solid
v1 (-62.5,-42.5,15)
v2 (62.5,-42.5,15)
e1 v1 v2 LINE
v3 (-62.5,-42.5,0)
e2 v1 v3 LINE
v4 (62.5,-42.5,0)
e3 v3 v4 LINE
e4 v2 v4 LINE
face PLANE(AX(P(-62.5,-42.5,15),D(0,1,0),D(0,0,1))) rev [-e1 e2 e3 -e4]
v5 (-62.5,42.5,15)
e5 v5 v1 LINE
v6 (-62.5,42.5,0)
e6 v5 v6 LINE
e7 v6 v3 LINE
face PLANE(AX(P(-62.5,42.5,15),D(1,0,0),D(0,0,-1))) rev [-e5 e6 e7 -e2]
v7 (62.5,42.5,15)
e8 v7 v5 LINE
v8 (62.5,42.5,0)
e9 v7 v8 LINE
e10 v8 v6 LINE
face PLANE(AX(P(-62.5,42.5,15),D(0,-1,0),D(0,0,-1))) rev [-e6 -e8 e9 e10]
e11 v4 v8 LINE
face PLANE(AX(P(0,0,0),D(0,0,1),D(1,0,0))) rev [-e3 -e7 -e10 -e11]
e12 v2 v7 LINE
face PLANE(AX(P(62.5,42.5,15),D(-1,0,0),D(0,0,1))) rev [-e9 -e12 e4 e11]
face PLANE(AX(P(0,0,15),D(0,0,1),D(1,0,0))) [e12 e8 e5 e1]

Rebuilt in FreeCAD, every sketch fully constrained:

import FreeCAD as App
import Part
import Sketcher
from FreeCAD import Vector

doc = App.newDocument("Part")
body = doc.addObject("PartDesign::Body", "Body")

sketch1 = body.newObject("Sketcher::SketchObject", "Sketch")
sketch1.AttachmentSupport = (doc.getObject("XY_Plane"), [""])
sketch1.MapMode = "FlatFace"
sketch1.addGeometry([
    Part.LineSegment(Vector(-62, 42, 0), Vector(-62, -42, 0)),
    Part.LineSegment(Vector(-62, -42, 0), Vector(62, -42, 0)),
    Part.LineSegment(Vector(62, -42, 0), Vector(62, 42, 0)),
    Part.LineSegment(Vector(62, 42, 0), Vector(-62, 42, 0)),
], False)
sketch1.addConstraint([
    Sketcher.Constraint("Coincident", 0, 2, 1, 1),
    Sketcher.Constraint("Coincident", 1, 2, 2, 1),
    Sketcher.Constraint("Coincident", 2, 2, 3, 1),
    Sketcher.Constraint("Coincident", 3, 2, 0, 1),
    Sketcher.Constraint("Vertical", 0),
    Sketcher.Constraint("Horizontal", 1),
    Sketcher.Constraint("Vertical", 2),
    Sketcher.Constraint("Horizontal", 3),
    Sketcher.Constraint("Symmetric", 0, 2, 2, 2, -1, 1),
    Sketcher.Constraint("DistanceX", 1, 1, 1, 2, 125.0),
    Sketcher.Constraint("DistanceY", 0, 2, 0, 1, 85.0),
])
pad1 = body.newObject("PartDesign::Pad", "Pad")
pad1.Profile = sketch1
pad1.Length = 15

doc.recompute()
